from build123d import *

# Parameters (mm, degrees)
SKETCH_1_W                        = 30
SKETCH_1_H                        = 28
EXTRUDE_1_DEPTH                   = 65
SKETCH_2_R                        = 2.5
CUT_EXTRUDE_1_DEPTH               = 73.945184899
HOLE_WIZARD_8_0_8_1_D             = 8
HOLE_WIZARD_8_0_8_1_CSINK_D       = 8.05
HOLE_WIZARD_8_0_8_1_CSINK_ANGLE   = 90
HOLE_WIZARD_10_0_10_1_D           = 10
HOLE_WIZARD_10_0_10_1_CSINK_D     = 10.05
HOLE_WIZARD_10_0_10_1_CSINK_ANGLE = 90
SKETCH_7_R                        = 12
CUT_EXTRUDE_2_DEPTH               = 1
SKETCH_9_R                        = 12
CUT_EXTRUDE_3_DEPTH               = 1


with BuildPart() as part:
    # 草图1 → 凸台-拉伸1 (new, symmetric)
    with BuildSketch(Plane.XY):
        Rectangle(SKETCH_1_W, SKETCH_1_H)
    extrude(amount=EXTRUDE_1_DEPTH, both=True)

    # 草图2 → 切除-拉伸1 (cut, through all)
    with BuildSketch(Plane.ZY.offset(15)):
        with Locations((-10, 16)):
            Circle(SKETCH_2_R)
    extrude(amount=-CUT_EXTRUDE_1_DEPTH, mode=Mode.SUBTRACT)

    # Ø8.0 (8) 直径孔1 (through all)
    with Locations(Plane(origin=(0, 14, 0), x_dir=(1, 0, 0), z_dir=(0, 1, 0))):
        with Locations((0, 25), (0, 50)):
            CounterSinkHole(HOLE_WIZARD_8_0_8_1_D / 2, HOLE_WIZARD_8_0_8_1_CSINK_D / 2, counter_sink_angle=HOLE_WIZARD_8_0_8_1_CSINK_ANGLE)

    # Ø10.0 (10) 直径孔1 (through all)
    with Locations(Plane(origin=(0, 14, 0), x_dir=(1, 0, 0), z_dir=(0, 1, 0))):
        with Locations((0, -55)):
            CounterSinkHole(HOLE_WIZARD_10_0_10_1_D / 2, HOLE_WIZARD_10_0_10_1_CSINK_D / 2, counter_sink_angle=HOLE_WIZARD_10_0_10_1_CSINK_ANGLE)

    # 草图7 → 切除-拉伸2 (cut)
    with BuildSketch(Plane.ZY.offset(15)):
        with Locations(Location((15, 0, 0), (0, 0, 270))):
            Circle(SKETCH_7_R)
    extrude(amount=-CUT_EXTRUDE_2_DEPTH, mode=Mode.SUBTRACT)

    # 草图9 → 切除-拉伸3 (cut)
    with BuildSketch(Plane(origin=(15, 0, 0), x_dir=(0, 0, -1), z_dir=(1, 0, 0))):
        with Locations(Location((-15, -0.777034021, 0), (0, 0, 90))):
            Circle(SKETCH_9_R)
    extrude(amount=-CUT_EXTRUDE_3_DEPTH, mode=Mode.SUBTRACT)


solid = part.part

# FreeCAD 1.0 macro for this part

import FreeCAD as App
import Part
import Sketcher

V = App.Vector


def add_polygon(sketch, points):
    """Adds a closed chain of lines whose ends are joined by coincident constraints."""
    first, n = sketch.GeometryCount, len(points)
    for a, b in zip(points, points[1:] + points[:1]):
        sketch.addGeometry(Part.LineSegment(App.Vector(*a, 0), App.Vector(*b, 0)), False)
    for i in range(n):
        sketch.addConstraint(Sketcher.Constraint("Coincident", first + i, 2, first + (i + 1) % n, 1))

doc = App.newDocument("Part")
body = doc.addObject("PartDesign::Body", "Body")

# Sketch on XY plane
sketch1 = body.newObject("Sketcher::SketchObject", "Sketch")
sketch1.AttachmentSupport = (doc.getObject("XY_Plane"), [""])
sketch1.MapMode = "FlatFace"
add_polygon(sketch1, [(-15, 14), (-15, -14), (15, -14), (15, 14)])  # lines 0-3
sketch1.addConstraint([
    Sketcher.Constraint("Vertical", 0),
    Sketcher.Constraint("Horizontal", 1),
    Sketcher.Constraint("Vertical", 2),
    Sketcher.Constraint("Horizontal", 3),
    Sketcher.Constraint("Symmetric", 0, 2, 2, 2, -1, 1),
    Sketcher.Constraint("DistanceX", 1, 1, 1, 2, 30.0),
    Sketcher.Constraint("DistanceY", 0, 2, 0, 1, 28.0),
])
pad1 = body.newObject("PartDesign::Pad", "Pad")
pad1.Profile = sketch1
pad1.Length = 130
pad1.Midplane = True

# Sketch on YZ plane
sketch2 = body.newObject("Sketcher::SketchObject", "Sketch001")
sketch2.AttachmentSupport = (doc.getObject("YZ_Plane"), [""])
sketch2.MapMode = "FlatFace"
sketch2.AttachmentOffset = App.Placement(V(0, 0, -15), App.Rotation())
sketch2.addGeometry(Part.Circle(V(16, -10, 0), V(0, 0, 1), 2.5), False)
sketch2.addConstraint([
    Sketcher.Constraint("Diameter", 0, 5.0),
    Sketcher.Constraint("DistanceX", -1, 1, 0, 3, 16.0),
    Sketcher.Constraint("DistanceY", 0, 3, -1, 1, 10.0),
])
pocket1 = body.newObject("PartDesign::Pocket", "Pocket")
pocket1.Profile = sketch2
pocket1.Type = "ThroughAll"
pocket1.Reversed = True

# Sketch on XZ plane
sketch3 = body.newObject("Sketcher::SketchObject", "Sketch002")
sketch3.AttachmentSupport = (doc.getObject("XZ_Plane"), [""])
sketch3.MapMode = "FlatFace"
sketch3.AttachmentOffset = App.Placement(V(0, 0, -14), App.Rotation())
sketch3.addGeometry([
    Part.Circle(V(0, -25, 0), V(0, 0, 1), 4),
    Part.Circle(V(0, -50, 0), V(0, 0, 1), 4),
], False)
sketch3.addConstraint([
    Sketcher.Constraint("Equal", 0, 1),
    Sketcher.Constraint("PointOnObject", 0, 3, -2),
    Sketcher.Constraint("PointOnObject", 1, 3, -2),
    Sketcher.Constraint("Diameter", 0, 8.0),
    Sketcher.Constraint("DistanceY", 0, 3, -1, 1, 25.0),
    Sketcher.Constraint("DistanceY", 1, 3, -1, 1, 50.0),
])
doc.recompute()
hole = body.newObject("PartDesign::Hole", "Hole")
hole.Profile = sketch3
hole.ThreadType = "None"
hole.Diameter = 8
hole.DepthType = "ThroughAll"
hole.HoleCutType = "Countersink"
hole.HoleCutDiameter = 8.05
hole.HoleCutCountersinkAngle = 90
hole.Reversed = True

# Sketch on XZ plane
sketch4 = body.newObject("Sketcher::SketchObject", "Sketch003")
sketch4.AttachmentSupport = (doc.getObject("XZ_Plane"), [""])
sketch4.MapMode = "FlatFace"
sketch4.AttachmentOffset = App.Placement(V(0, 0, -14), App.Rotation())
sketch4.addGeometry(Part.Circle(V(0, 55, 0), V(0, 0, 1), 5), False)
sketch4.addConstraint([
    Sketcher.Constraint("PointOnObject", 0, 3, -2),
    Sketcher.Constraint("Diameter", 0, 10.0),
    Sketcher.Constraint("DistanceY", -1, 1, 0, 3, 55.0),
])
doc.recompute()
hole2 = body.newObject("PartDesign::Hole", "Hole001")
hole2.Profile = sketch4
hole2.ThreadType = "None"
hole2.Diameter = 10
hole2.DepthType = "ThroughAll"
hole2.HoleCutType = "Countersink"
hole2.HoleCutDiameter = 10.05
hole2.HoleCutCountersinkAngle = 90
hole2.Reversed = True

# Sketch on YZ plane
sketch5 = body.newObject("Sketcher::SketchObject", "Sketch004")
sketch5.AttachmentSupport = (doc.getObject("YZ_Plane"), [""])
sketch5.MapMode = "FlatFace"
sketch5.AttachmentOffset = App.Placement(V(0, 0, -15), App.Rotation())
sketch5.addGeometry(Part.Circle(V(0, 15, 0), V(0, 0, 1), 12), False)
sketch5.addConstraint([
    Sketcher.Constraint("PointOnObject", 0, 3, -2),
    Sketcher.Constraint("Diameter", 0, 24.0),
    Sketcher.Constraint("DistanceY", -1, 1, 0, 3, 15.0),
])
pocket2 = body.newObject("PartDesign::Pocket", "Pocket001")
pocket2.Profile = sketch5
pocket2.Length = 1
pocket2.Reversed = True

# Sketch on YZ plane
sketch6 = body.newObject("Sketcher::SketchObject", "Sketch005")
sketch6.AttachmentSupport = (doc.getObject("YZ_Plane"), [""])
sketch6.MapMode = "FlatFace"
sketch6.AttachmentOffset = App.Placement(V(0, 0, 15), App.Rotation())
sketch6.addGeometry(Part.Circle(V(-1, 15, 0), V(0, 0, 1), 12), False)
sketch6.addConstraint([
    Sketcher.Constraint("Diameter", 0, 24.0),
    Sketcher.Constraint("DistanceY", -1, 1, 0, 3, 15.0),
    Sketcher.Constraint("DistanceX", 0, 3, -1, 1, 0.777034),
])
pocket3 = body.newObject("PartDesign::Pocket", "Pocket002")
pocket3.Profile = sketch6
pocket3.Length = 1

doc.recompute()
